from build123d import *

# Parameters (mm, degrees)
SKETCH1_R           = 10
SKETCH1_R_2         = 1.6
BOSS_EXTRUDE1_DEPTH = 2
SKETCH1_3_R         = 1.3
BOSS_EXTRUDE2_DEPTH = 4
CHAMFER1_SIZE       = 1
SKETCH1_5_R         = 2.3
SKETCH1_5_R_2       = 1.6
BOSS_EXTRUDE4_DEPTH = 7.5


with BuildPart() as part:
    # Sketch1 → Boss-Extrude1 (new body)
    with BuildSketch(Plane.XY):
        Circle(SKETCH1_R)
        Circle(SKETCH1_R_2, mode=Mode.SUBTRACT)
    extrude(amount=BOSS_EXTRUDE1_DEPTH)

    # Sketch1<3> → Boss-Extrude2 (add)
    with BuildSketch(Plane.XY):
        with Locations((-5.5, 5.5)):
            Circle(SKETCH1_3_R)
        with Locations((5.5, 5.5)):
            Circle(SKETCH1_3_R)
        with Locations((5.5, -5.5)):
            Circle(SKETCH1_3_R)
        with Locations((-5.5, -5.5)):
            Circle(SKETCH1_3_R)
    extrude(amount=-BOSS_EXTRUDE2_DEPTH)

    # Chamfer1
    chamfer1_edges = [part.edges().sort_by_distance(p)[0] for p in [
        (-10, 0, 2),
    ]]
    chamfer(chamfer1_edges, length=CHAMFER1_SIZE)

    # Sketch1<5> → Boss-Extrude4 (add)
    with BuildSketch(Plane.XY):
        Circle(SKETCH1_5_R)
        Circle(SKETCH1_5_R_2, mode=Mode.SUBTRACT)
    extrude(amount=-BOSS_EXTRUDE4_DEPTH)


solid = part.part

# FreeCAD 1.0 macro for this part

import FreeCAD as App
import Part
import Sketcher
from FreeCAD import Vector
Q = App.Units.Quantity


def edges_at(feature, points):
    """Names of the edges that pass closest to the given points."""
    edges = feature.Shape.Edges
    near = lambda p: min(range(len(edges)), key=lambda i: edges[i].distToShape(Part.Vertex(*p))[0])
    return sorted({f"Edge{near(p) + 1}" for p in points})

doc = App.newDocument("Part")
body = doc.addObject("PartDesign::Body", "Body")

# Sketch on XY plane
sketch1 = body.newObject("Sketcher::SketchObject", "Sketch")
sketch1.AttachmentSupport = (doc.getObject("XY_Plane"), [""])
sketch1.MapMode = "FlatFace"
sketch1.addGeometry(Part.Circle(Vector(0, 0, 0), Vector(0, 0, 1), 10), False)
sketch1.addGeometry(Part.Circle(Vector(0, 0, 0), Vector(0, 0, 1), 1.6), False)
sketch1.addConstraint(Sketcher.Constraint("Coincident", 0, 3, -1, 1))
sketch1.addConstraint(Sketcher.Constraint("Coincident", 1, 3, -1, 1))
sketch1.addConstraint(Sketcher.Constraint("Diameter", 0, Q("20 mm")))
sketch1.addConstraint(Sketcher.Constraint("Diameter", 1, Q("3.2 mm")))
pad1 = body.newObject("PartDesign::Pad", "Pad")
pad1.Profile = sketch1
pad1.Length = 2

# Sketch on XY plane
sketch2 = body.newObject("Sketcher::SketchObject", "Sketch001")
sketch2.AttachmentSupport = (doc.getObject("XY_Plane"), [""])
sketch2.MapMode = "FlatFace"
sketch2.addGeometry(Part.Circle(Vector(-5.5, 5.5, 0), Vector(0, 0, 1), 1.3), False)
sketch2.addGeometry(Part.Circle(Vector(5.5, 5.5, 0), Vector(0, 0, 1), 1.3), False)
sketch2.addGeometry(Part.Circle(Vector(5.5, -5.5, 0), Vector(0, 0, 1), 1.3), False)
sketch2.addGeometry(Part.Circle(Vector(-5.5, -5.5, 0), Vector(0, 0, 1), 1.3), False)
sketch2.addConstraint(Sketcher.Constraint("Equal", 0, 1))
sketch2.addConstraint(Sketcher.Constraint("Equal", 1, 2))
sketch2.addConstraint(Sketcher.Constraint("Equal", 2, 3))
sketch2.addConstraint(Sketcher.Constraint("Symmetric", 0, 3, 2, 3, -1, 1))
sketch2.addConstraint(Sketcher.Constraint("Symmetric", 1, 3, 3, 3, -1, 1))
sketch2.addConstraint(Sketcher.Constraint("Symmetric", 0, 3, 1, 3, -2))
sketch2.addConstraint(Sketcher.Constraint("Diameter", 0, Q("2.6 mm")))
sketch2.addConstraint(Sketcher.Constraint("DistanceX", 0, 3, 1, 3, Q("11 mm")))
sketch2.addConstraint(Sketcher.Constraint("DistanceY", 2, 3, 1, 3, Q("11 mm")))
pad2 = body.newObject("PartDesign::Pad", "Pad001")
pad2.Profile = sketch2
pad2.Length = 4
pad2.Reversed = True
doc.recompute()

chamfer = body.newObject("PartDesign::Chamfer", "Chamfer")
chamfer.Base = (pad2, edges_at(pad2, [(-10, 0, 2)]))
chamfer.Size = 1

# Sketch on XY plane
sketch3 = body.newObject("Sketcher::SketchObject", "Sketch002")
sketch3.AttachmentSupport = (doc.getObject("XY_Plane"), [""])
sketch3.MapMode = "FlatFace"
sketch3.addGeometry(Part.Circle(Vector(0, 0, 0), Vector(0, 0, 1), 2.3), False)
sketch3.addGeometry(Part.Circle(Vector(0, 0, 0), Vector(0, 0, 1), 1.6), False)
sketch3.addConstraint(Sketcher.Constraint("Coincident", 0, 3, -1, 1))
sketch3.addConstraint(Sketcher.Constraint("Coincident", 1, 3, -1, 1))
sketch3.addConstraint(Sketcher.Constraint("Diameter", 0, Q("4.6 mm")))
sketch3.addConstraint(Sketcher.Constraint("Diameter", 1, Q("3.2 mm")))
pad3 = body.newObject("PartDesign::Pad", "Pad002")
pad3.Profile = sketch3
pad3.Length = 7.5
pad3.Reversed = True

doc.recompute()
